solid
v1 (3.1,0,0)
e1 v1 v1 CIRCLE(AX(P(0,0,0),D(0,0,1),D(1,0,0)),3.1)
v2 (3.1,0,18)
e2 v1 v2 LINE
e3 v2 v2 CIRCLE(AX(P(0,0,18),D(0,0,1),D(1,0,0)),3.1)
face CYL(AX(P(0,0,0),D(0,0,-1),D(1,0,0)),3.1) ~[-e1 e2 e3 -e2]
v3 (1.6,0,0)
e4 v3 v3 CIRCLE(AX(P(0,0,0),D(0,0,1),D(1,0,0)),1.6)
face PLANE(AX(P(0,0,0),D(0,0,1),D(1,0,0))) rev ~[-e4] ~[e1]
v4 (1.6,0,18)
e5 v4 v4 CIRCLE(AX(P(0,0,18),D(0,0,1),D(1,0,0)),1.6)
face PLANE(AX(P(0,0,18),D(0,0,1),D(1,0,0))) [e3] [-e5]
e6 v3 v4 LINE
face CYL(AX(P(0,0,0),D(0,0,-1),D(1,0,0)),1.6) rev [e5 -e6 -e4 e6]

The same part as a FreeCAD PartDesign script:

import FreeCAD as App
import Part
import Sketcher
from FreeCAD import Vector
Q = App.Units.Quantity

doc = App.newDocument("Part")
body = doc.addObject("PartDesign::Body", "Body")

# Sketch on XY plane
sketch1 = doc.addObject("Sketcher::SketchObject", "Sketch")
body.addObject(sketch1)
sketch1.AttachmentSupport = (doc.XY_Plane, [""])
sketch1.MapMode = "FlatFace"
sketch1.addGeometry([
    Part.Circle(Vector(0, 0, 0), Vector(0, 0, 1), 3.1),
    Part.Circle(Vector(0, 0, 0), Vector(0, 0, 1), 1.6),
], False)
sketch1.addConstraint([
    Sketcher.Constraint("Coincident", 0, 3, -1, 1),
    Sketcher.Constraint("Coincident", 1, 3, -1, 1),
    Sketcher.Constraint("Diameter", 0, Q("6.2 mm")),
    Sketcher.Constraint("Diameter", 1, Q("3.2 mm")),
])
pad1 = doc.addObject("PartDesign::Pad", "Pad")
body.addObject(pad1)
pad1.Profile = sketch1
pad1.Length = 18

doc.recompute()
